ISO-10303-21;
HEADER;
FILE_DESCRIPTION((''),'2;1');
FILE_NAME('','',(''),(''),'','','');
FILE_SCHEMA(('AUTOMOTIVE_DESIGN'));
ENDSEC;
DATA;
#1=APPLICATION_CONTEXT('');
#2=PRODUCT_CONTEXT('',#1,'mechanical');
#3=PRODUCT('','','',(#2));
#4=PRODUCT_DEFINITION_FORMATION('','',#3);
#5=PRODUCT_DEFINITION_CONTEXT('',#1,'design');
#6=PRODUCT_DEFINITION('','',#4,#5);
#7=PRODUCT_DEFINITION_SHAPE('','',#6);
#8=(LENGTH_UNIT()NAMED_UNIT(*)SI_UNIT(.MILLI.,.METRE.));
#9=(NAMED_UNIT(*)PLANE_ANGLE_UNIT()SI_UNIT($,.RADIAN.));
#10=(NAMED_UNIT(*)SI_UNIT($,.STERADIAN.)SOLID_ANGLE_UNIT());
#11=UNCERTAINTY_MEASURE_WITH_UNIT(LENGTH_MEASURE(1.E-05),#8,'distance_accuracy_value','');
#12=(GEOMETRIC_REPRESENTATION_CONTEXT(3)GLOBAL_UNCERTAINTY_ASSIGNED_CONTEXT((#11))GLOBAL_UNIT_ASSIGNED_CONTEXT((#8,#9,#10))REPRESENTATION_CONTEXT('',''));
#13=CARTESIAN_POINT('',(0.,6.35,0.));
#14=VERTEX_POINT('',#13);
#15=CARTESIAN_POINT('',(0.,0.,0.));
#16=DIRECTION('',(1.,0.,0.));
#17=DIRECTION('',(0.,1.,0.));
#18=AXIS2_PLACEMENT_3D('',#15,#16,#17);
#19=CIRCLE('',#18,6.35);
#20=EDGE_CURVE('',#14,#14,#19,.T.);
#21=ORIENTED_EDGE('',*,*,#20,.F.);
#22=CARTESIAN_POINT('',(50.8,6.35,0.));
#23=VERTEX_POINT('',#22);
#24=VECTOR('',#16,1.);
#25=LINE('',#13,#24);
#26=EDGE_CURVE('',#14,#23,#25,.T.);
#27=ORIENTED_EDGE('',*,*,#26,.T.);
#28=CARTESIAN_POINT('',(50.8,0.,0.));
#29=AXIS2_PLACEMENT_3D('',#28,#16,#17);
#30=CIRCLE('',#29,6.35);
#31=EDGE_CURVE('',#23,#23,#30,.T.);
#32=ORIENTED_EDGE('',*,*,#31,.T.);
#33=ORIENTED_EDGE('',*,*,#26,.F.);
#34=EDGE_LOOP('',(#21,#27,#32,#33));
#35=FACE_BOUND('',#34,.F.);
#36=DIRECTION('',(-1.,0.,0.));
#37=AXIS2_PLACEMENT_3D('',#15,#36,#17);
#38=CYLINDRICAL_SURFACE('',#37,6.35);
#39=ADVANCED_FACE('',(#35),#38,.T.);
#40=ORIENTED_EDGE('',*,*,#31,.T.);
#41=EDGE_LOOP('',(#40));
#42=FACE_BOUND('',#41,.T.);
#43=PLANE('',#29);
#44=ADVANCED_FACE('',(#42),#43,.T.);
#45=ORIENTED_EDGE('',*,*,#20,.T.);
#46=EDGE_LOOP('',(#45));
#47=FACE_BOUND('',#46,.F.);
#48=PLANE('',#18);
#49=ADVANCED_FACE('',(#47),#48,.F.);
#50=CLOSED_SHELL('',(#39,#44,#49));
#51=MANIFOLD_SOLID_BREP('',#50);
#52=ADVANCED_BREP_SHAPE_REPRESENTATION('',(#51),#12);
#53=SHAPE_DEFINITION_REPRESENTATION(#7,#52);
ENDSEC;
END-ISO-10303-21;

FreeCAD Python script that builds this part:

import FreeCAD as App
import Part
import Sketcher
from FreeCAD import Vector
Q = App.Units.Quantity

doc = App.newDocument("Part")
params = doc.addObject("Spreadsheet::Sheet", "Params")
for row, (alias, value) in enumerate([
    ("sketch1_diameter", "0.5 in"),
    ("pad1_length", "2 in"),
], start=1):
    params.set(f"A{row}", alias)
    params.set(f"B{row}", "=" + value)
    params.setAlias(f"B{row}", alias)

body = doc.addObject("PartDesign::Body", "Body")

# Sketch on YZ plane
sketch1 = body.newObject("Sketcher::SketchObject", "Sketch")
sketch1.AttachmentSupport = (doc.getObject("YZ_Plane"), [""])
sketch1.MapMode = "FlatFace"
sketch1.addGeometry(Part.Circle(Vector(0, 0, 0), Vector(0, 0, 1), 6), False)
sketch1.addConstraint([
    Sketcher.Constraint("Coincident", 0, 3, -1, 1),
    Sketcher.Constraint("Diameter", 0, Q("0.5 in")),
])
sketch1.setExpression("Constraints[1]", "Params.sketch1_diameter")
pad1 = body.newObject("PartDesign::Pad", "Pad")
pad1.Profile = sketch1
pad1.setExpression("Length", "Params.pad1_length")

doc.recompute()
